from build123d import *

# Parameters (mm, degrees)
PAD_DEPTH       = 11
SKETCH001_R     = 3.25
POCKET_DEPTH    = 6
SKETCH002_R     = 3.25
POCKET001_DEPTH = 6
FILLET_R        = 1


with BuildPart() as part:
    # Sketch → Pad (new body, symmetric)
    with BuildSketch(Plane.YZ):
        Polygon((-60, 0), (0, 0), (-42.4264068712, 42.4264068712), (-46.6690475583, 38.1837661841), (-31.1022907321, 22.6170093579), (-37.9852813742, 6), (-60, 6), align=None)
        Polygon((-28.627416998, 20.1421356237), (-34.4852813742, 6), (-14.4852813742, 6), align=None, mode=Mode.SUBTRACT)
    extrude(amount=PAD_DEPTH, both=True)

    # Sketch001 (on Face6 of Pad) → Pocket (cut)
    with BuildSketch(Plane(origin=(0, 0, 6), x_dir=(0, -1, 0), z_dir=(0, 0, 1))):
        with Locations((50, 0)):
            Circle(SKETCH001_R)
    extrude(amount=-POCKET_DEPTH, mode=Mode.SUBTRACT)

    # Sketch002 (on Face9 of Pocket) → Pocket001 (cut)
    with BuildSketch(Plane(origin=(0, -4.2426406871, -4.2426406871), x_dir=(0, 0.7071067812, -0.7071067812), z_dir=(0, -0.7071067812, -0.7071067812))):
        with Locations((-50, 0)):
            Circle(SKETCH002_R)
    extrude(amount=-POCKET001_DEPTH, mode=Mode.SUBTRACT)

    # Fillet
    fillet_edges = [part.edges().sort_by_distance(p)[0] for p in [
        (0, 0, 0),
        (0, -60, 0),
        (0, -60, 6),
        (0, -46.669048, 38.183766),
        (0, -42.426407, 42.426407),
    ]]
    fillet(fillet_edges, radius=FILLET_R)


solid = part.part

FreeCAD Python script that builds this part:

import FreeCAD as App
import Part
import Sketcher
Q = App.Units.Quantity


def edges_at(feature, points):
    """Names of the edges that pass closest to the given points."""
    edges = feature.Shape.Edges
    near = lambda p: min(range(len(edges)), key=lambda i: edges[i].distToShape(Part.Vertex(*p))[0])
    return sorted({f"Edge{near(p) + 1}" for p in points})


def add_polygon(sketch, points):
    """Adds a closed chain of lines whose ends are joined by coincident constraints."""
    first, n = sketch.GeometryCount, len(points)
    for a, b in zip(points, points[1:] + points[:1]):
        sketch.addGeometry(Part.LineSegment(App.Vector(*a, 0), App.Vector(*b, 0)), False)
    for i in range(n):
        sketch.addConstraint(Sketcher.Constraint("Coincident", first + i, 2, first + (i + 1) % n, 1))

doc = App.newDocument("Part")
body = doc.addObject("PartDesign::Body", "Body")

sketch1 = body.newObject("Sketcher::SketchObject", "Sketch")
sketch1.AttachmentSupport = (doc.getObject("YZ_Plane"), [""])
sketch1.MapMode = "FlatFace"
add_polygon(sketch1, [(-60, 0), (0, 0), (-42, 42), (-47, 38), (-31, 23), (-38, 6), (-60, 6)])
add_polygon(sketch1, [(-34, 6), (-29, 20), (-14, 6)])
sketch1.addConstraint([
    Sketcher.Constraint("Horizontal", 0),
    Sketcher.Constraint("Horizontal", 5),
    Sketcher.Constraint("Vertical", 6),
    Sketcher.Constraint("Horizontal", 9),
    Sketcher.Constraint("Coincident", 0, 2, -1, 1),
    Sketcher.Constraint("Perpendicular", 1, 2),
    Sketcher.Constraint("Perpendicular", 2, 3),
    Sketcher.Constraint("Parallel", 4, 7),
    Sketcher.Constraint("Parallel", 3, 8),
    Sketcher.Constraint("Horizontal", 5, 2, 8, 2),
    Sketcher.Constraint("DistanceX", 0, 1, 0, 2, Q("60 mm")),
    Sketcher.Constraint("DistanceX", 9, 2, 9, 1, Q("20 mm")),
    Sketcher.Constraint("DistanceY", 6, 2, 6, 1, Q("6 mm")),
    Sketcher.Constraint("Angle", 1, Q("135 deg")),
    Sketcher.Constraint("Distance", 1, Q("60 mm")),
    Sketcher.Constraint("Distance", 2, Q("6 mm")),
    Sketcher.Constraint("Distance", 8, Q("20 mm")),
    Sketcher.Constraint("DistanceX", 4, 2, 8, 2, Q("23.5 mm")),
    Sketcher.Constraint("DistanceX", 5, 2, 5, 1, Q("22.014719 mm")),
])
pad1 = body.newObject("PartDesign::Pad", "Pad")
pad1.Profile = sketch1
pad1.Length = 22
pad1.Midplane = True

sketch2 = body.newObject("Sketcher::SketchObject", "Sketch001")
sketch2.AttachmentSupport = (doc.getObject("XY_Plane"), [""])
sketch2.MapMode = "FlatFace"
sketch2.AttachmentOffset = App.Placement(App.Vector(0, 0, 6), App.Rotation())
sketch2.addGeometry(Part.Circle(App.Vector(0, -50, 0), App.Vector(0, 0, 1), 3.2), False)
sketch2.addConstraint([
    Sketcher.Constraint("PointOnObject", 0, 3, -2),
    Sketcher.Constraint("Diameter", 0, Q("6.5 mm")),
    Sketcher.Constraint("DistanceY", 0, 3, -1, 1, Q("50 mm")),
])
pocket1 = body.newObject("PartDesign::Pocket", "Pocket")
pocket1.Profile = sketch2
pocket1.Length = 6

sketch3 = body.newObject("Sketcher::SketchObject", "Sketch002")
sketch3.Placement = App.Placement(App.Vector(0, -4.242641, -4.242641), App.Rotation(App.Vector(0, 0.707106781, -0.707106781), App.Vector(0.999999999, 0, 0), App.Vector(0, -0.707106781, -0.707106781), "ZXY"))
sketch3.addGeometry(Part.Circle(App.Vector(-50, 0, 0), App.Vector(0, 0, 1), 3.2), False)
sketch3.addConstraint([
    Sketcher.Constraint("PointOnObject", 0, 3, -1),
    Sketcher.Constraint("Diameter", 0, Q("6.5 mm")),
    Sketcher.Constraint("DistanceX", 0, 3, -1, 1, Q("50 mm")),
])
pocket2 = body.newObject("PartDesign::Pocket", "Pocket001")
pocket2.Profile = sketch3
pocket2.Length = 6
doc.recompute()

fillet = body.newObject("PartDesign::Fillet", "Fillet")
fillet.Base = (pocket2, edges_at(pocket2, [
    (0, 0, 0),
    (0, -60, 0),
    (0, -60, 6),
    (0, -46.669, 38.184),
    (0, -42.426, 42.426),
]))
fillet.Radius = 1

doc.recompute()
